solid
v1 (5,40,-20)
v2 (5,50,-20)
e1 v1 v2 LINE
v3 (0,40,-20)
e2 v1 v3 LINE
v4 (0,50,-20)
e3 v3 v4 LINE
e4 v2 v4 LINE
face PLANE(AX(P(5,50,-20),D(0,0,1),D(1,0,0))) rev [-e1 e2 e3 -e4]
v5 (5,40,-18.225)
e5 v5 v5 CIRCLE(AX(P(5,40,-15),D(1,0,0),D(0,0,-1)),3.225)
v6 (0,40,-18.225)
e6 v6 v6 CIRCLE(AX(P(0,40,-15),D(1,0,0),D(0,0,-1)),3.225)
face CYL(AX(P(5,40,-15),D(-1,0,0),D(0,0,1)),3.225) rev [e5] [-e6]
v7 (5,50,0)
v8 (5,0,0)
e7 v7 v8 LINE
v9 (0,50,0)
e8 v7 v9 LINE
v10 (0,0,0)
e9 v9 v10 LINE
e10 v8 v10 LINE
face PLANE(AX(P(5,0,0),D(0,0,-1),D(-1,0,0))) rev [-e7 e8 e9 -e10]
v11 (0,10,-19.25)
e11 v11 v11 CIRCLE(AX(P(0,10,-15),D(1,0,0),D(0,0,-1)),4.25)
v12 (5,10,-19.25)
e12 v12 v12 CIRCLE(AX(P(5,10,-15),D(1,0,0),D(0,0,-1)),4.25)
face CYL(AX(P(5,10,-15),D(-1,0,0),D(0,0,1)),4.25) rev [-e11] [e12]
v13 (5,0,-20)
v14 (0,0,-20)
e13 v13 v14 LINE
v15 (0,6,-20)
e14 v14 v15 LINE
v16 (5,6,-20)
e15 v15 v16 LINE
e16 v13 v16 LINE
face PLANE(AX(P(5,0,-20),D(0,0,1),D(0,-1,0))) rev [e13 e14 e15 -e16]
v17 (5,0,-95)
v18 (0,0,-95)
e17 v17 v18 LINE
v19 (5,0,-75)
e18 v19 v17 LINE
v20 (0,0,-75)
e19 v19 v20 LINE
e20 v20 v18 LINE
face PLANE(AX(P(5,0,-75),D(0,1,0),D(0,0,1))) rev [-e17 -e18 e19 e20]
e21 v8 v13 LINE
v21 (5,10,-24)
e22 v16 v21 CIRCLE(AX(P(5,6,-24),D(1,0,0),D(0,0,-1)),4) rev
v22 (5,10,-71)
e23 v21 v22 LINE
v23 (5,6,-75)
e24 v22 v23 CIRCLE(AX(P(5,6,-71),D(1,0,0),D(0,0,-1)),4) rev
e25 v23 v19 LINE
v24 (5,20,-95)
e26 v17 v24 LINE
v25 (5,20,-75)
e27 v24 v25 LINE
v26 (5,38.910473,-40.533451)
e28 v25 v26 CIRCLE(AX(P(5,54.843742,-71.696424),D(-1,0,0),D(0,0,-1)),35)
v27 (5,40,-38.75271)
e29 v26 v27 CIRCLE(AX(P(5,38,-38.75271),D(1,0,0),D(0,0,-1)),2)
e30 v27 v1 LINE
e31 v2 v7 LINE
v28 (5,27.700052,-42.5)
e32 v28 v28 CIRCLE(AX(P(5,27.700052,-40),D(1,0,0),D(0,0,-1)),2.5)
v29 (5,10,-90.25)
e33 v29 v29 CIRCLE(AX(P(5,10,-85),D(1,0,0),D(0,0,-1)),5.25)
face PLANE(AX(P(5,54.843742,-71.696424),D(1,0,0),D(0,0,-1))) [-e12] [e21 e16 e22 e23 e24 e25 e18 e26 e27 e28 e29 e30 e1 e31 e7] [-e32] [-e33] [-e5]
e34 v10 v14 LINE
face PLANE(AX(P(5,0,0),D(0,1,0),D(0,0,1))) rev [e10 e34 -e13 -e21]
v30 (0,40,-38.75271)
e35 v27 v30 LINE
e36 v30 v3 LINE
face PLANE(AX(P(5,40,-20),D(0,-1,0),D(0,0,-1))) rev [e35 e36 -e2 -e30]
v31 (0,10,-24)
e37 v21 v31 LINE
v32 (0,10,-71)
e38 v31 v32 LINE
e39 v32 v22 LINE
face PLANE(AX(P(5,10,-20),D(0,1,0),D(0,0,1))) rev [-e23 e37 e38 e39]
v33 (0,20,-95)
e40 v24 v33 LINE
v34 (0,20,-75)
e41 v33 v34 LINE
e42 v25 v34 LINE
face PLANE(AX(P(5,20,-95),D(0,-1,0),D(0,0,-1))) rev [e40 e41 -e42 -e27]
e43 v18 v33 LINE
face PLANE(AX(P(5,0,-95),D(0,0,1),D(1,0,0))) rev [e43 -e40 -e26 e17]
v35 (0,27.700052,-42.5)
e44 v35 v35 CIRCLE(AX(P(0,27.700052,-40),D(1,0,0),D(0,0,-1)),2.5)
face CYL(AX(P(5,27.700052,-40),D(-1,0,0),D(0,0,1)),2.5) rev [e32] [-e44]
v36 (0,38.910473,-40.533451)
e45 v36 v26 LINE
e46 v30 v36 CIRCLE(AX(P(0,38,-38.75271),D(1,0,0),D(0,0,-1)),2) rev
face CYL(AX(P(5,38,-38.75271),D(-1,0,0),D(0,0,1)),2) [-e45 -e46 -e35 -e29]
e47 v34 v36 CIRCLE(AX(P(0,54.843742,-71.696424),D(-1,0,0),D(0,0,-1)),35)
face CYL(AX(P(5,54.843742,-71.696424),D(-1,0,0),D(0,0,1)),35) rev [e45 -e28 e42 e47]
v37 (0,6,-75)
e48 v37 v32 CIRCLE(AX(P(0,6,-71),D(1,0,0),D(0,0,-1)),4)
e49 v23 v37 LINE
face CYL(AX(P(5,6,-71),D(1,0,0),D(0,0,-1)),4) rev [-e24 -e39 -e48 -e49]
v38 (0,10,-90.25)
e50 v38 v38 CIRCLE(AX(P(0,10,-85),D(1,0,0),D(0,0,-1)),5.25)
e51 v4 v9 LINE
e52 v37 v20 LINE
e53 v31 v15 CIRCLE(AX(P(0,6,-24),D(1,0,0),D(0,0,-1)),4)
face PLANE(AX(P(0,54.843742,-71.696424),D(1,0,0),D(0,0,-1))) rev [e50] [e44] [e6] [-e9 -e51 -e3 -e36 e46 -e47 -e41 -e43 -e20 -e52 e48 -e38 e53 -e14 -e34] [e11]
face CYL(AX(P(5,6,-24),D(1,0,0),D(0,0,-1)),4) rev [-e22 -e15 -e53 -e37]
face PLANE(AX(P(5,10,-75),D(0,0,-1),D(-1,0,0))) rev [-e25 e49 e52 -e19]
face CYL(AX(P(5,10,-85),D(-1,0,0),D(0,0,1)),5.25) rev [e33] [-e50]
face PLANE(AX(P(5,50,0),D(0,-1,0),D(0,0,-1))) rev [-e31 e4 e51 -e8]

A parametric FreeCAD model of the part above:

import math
import FreeCAD as App
import Part
import Sketcher
Q = App.Units.Quantity


def edges_at(feature, points):
    """Names of the edges that pass closest to the given points."""
    edges = feature.Shape.Edges
    near = lambda p: min(range(len(edges)), key=lambda i: edges[i].distToShape(Part.Vertex(*p))[0])
    return sorted({f"Edge{near(p) + 1}" for p in points})

doc = App.newDocument("Part")
params = doc.addObject("Spreadsheet::Sheet", "Params")
for row, (alias, value) in enumerate([
    ("sketch1_diameter", "5 mm"),
    ("sketch1_radius", "35 mm"),
    ("sketch1_diameter2", "8.5 mm"),
    ("sketch1_diameter3", "10.5 mm"),
    ("sketch1_diameter4", "6.45 mm"),
    ("pad1_length", "5 mm"),
    ("fillet_radius", "4 mm"),
    ("fillet2_radius", "2 mm"),
], start=1):
    params.set(f"A{row}", alias)
    params.set(f"B{row}", "=" + value)
    params.setAlias(f"B{row}", alias)

body = doc.addObject("PartDesign::Body", "Body")

# Sketch on YZ plane
sketch1 = doc.addObject("Sketcher::SketchObject", "Sketch")
body.addObject(sketch1)
sketch1.AttachmentSupport = (doc.YZ_Plane, [""])
sketch1.MapMode = "FlatFace"
sketch1.addGeometry(Part.LineSegment(App.Vector(0, 0, 0), App.Vector(0, -20, 0)), False)
sketch1.addGeometry(Part.LineSegment(App.Vector(0, -20, 0), App.Vector(10, -20, 0)), False)
sketch1.addGeometry(Part.LineSegment(App.Vector(10, -20, 0), App.Vector(10, -75, 0)), False)
sketch1.addGeometry(Part.LineSegment(App.Vector(10, -75, 0), App.Vector(0, -75, 0)), False)
sketch1.addGeometry(Part.LineSegment(App.Vector(0, -75, 0), App.Vector(0, -95, 0)), False)
sketch1.addGeometry(Part.LineSegment(App.Vector(0, -95, 0), App.Vector(20, -95, 0)), False)
sketch1.addGeometry(Part.LineSegment(App.Vector(20, -95, 0), App.Vector(20, -75, 0)), False)
sketch1.addGeometry(Part.ArcOfCircle(Part.Circle(App.Vector(54.843742, -71.696424, 0), App.Vector(0, 0, 1), 35), math.radians(115.094148), math.radians(185.41609)), False)
sketch1.addGeometry(Part.LineSegment(App.Vector(40, -40, 0), App.Vector(40, -20, 0)), False)
sketch1.addGeometry(Part.LineSegment(App.Vector(40, -20, 0), App.Vector(50, -20, 0)), False)
sketch1.addGeometry(Part.LineSegment(App.Vector(50, -20, 0), App.Vector(50, 0, 0)), False)
sketch1.addGeometry(Part.LineSegment(App.Vector(50, 0, 0), App.Vector(0, 0, 0)), False)
sketch1.addGeometry(Part.Circle(App.Vector(10, -15, 0), App.Vector(0, 0, 1), 4.25), False)
sketch1.addGeometry(Part.Circle(App.Vector(10, -85, 0), App.Vector(0, 0, 1), 5.25), False)
sketch1.addGeometry(Part.Circle(App.Vector(27.700052, -40, 0), App.Vector(0, 0, 1), 2.5), False)
sketch1.addGeometry(Part.Circle(App.Vector(40, -15, 0), App.Vector(0, 0, 1), 3.225), False)
sketch1.addConstraint(Sketcher.Constraint("Coincident", 0, 2, 1, 1))
sketch1.addConstraint(Sketcher.Constraint("Coincident", 1, 2, 2, 1))
sketch1.addConstraint(Sketcher.Constraint("Coincident", 2, 2, 3, 1))
sketch1.addConstraint(Sketcher.Constraint("Coincident", 3, 2, 4, 1))
sketch1.addConstraint(Sketcher.Constraint("Coincident", 4, 2, 5, 1))
sketch1.addConstraint(Sketcher.Constraint("Coincident", 5, 2, 6, 1))
sketch1.addConstraint(Sketcher.Constraint("Coincident", 6, 2, 7, 2))
sketch1.addConstraint(Sketcher.Constraint("Coincident", 7, 1, 8, 1))
sketch1.addConstraint(Sketcher.Constraint("Coincident", 8, 2, 9, 1))
sketch1.addConstraint(Sketcher.Constraint("Coincident", 9, 2, 10, 1))
sketch1.addConstraint(Sketcher.Constraint("Coincident", 10, 2, 11, 1))
sketch1.addConstraint(Sketcher.Constraint("Coincident", 11, 2, 0, 1))
sketch1.addConstraint(Sketcher.Constraint("Vertical", 0))
sketch1.addConstraint(Sketcher.Constraint("Horizontal", 1))
sketch1.addConstraint(Sketcher.Constraint("Vertical", 2))
sketch1.addConstraint(Sketcher.Constraint("Horizontal", 3))
sketch1.addConstraint(Sketcher.Constraint("Vertical", 4))
sketch1.addConstraint(Sketcher.Constraint("Horizontal", 5))
sketch1.addConstraint(Sketcher.Constraint("Vertical", 6))
sketch1.addConstraint(Sketcher.Constraint("Vertical", 8))
sketch1.addConstraint(Sketcher.Constraint("Horizontal", 9))
sketch1.addConstraint(Sketcher.Constraint("Vertical", 10))
sketch1.addConstraint(Sketcher.Constraint("Horizontal", 11))
sketch1.addConstraint(Sketcher.Constraint("Coincident", 11, 2, -1, 1))
sketch1.addConstraint(Sketcher.Constraint("PointOnObject", 3, 2, -2))
sketch1.addConstraint(Sketcher.Constraint("Horizontal", 12, 3, 15, 3))
sketch1.addConstraint(Sketcher.Constraint("Horizontal", 3, 2, 6, 2))
sketch1.addConstraint(Sketcher.Constraint("Horizontal", 14, 3, 7, 1))
sketch1.addConstraint(Sketcher.Constraint("Horizontal", 1, 2, 8, 2))
sketch1.addConstraint(Sketcher.Constraint("Vertical", 12, 3, 13, 3))
sketch1.addConstraint(Sketcher.Constraint("Vertical", 13, 3, 1, 2))
sketch1.addConstraint(Sketcher.Constraint("Vertical", 15, 3, 7, 1))
sketch1.addConstraint(Sketcher.Constraint("Equal", 3, 9))
sketch1.addConstraint(Sketcher.Constraint("Equal", 5, 0))
sketch1.addConstraint(Sketcher.Constraint("Equal", 0, 4))
sketch1.addConstraint(Sketcher.Constraint("Equal", 6, 8))
sketch1.addConstraint(Sketcher.Constraint("Diameter", 14, Q("5 mm")))
sketch1.addConstraint(Sketcher.Constraint("Radius", 7, Q("35 mm")))
sketch1.addConstraint(Sketcher.Constraint("Diameter", 12, Q("8.5 mm")))
sketch1.addConstraint(Sketcher.Constraint("Diameter", 13, Q("10.5 mm")))
sketch1.addConstraint(Sketcher.Constraint("Diameter", 15, Q("6.45 mm")))
sketch1.addConstraint(Sketcher.Constraint("DistanceX", 1, 1, 1, 2, Q("10 mm")))
sketch1.addConstraint(Sketcher.Constraint("DistanceX", 5, 1, 5, 2, Q("20 mm")))
sketch1.addConstraint(Sketcher.Constraint("DistanceX", 11, 2, 11, 1, Q("50 mm")))
sketch1.addConstraint(Sketcher.Constraint("DistanceY", 2, 2, 2, 1, Q("55 mm")))
sketch1.addConstraint(Sketcher.Constraint("DistanceY", 12, 3, -1, 1, Q("15 mm")))
sketch1.addConstraint(Sketcher.Constraint("DistanceY", 13, 3, -1, 1, Q("85 mm")))
sketch1.addConstraint(Sketcher.Constraint("DistanceX", -1, 1, 14, 3, Q("27.700052 mm")))
sketch1.setExpression("Constraints[36]", "Params.sketch1_diameter")
sketch1.setExpression("Constraints[37]", "Params.sketch1_radius")
sketch1.setExpression("Constraints[38]", "Params.sketch1_diameter2")
sketch1.setExpression("Constraints[39]", "Params.sketch1_diameter3")
sketch1.setExpression("Constraints[40]", "Params.sketch1_diameter4")
pad1 = doc.addObject("PartDesign::Pad", "Pad")
body.addObject(pad1)
pad1.Profile = sketch1
pad1.setExpression("Length", "Params.pad1_length")
doc.recompute()

fillet = doc.addObject("PartDesign::Fillet", "Fillet")
body.addObject(fillet)
fillet.Base = (pad1, edges_at(pad1, [(2.5, 10, -75), (2.5, 10, -20)]))
fillet.setExpression("Radius", "Params.fillet_radius")
doc.recompute()

fillet2 = doc.addObject("PartDesign::Fillet", "Fillet001")
body.addObject(fillet2)
fillet2.Base = (fillet, edges_at(fillet, [(2.5, 40, -40)]))
fillet2.setExpression("Radius", "Params.fillet2_radius")

doc.recompute()
